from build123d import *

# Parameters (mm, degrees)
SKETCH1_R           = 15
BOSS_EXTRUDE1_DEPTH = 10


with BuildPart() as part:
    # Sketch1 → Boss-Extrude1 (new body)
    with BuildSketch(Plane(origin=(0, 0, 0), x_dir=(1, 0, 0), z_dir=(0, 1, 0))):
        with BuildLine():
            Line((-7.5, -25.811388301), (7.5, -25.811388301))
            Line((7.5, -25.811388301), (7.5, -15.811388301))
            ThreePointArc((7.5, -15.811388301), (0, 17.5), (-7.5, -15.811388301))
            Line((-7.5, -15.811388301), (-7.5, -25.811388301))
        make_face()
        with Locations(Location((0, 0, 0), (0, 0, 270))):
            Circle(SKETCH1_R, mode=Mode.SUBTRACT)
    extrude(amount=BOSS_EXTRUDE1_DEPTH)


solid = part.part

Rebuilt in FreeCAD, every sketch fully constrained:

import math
import FreeCAD as App
import Part
import Sketcher
Q = App.Units.Quantity

doc = App.newDocument("Part")
body = doc.addObject("PartDesign::Body", "Body")

sketch1 = body.newObject("Sketcher::SketchObject", "Sketch")
sketch1.AttachmentSupport = (doc.getObject("XZ_Plane"), [""])
sketch1.MapMode = "FlatFace"
sketch1.addGeometry(Part.LineSegment(App.Vector(-7.5, 25.811388, 0), App.Vector(7.5, 25.811388, 0)), False)
sketch1.addGeometry(Part.LineSegment(App.Vector(7.5, 25.811388, 0), App.Vector(7.5, 15.811388, 0)), False)
sketch1.addGeometry(Part.ArcOfCircle(Part.Circle(App.Vector(0, 0, 0), App.Vector(0, 0, 1), 17.5), math.radians(115.376934), math.radians(424.623066)), False)
sketch1.addGeometry(Part.LineSegment(App.Vector(-7.5, 15.811388, 0), App.Vector(-7.5, 25.811388, 0)), False)
sketch1.addGeometry(Part.Circle(App.Vector(0, 0, 0), App.Vector(0, 0, 1), 15), False)
sketch1.addConstraint(Sketcher.Constraint("Coincident", 0, 2, 1, 1))
sketch1.addConstraint(Sketcher.Constraint("Coincident", 1, 2, 2, 2))
sketch1.addConstraint(Sketcher.Constraint("Coincident", 2, 1, 3, 1))
sketch1.addConstraint(Sketcher.Constraint("Coincident", 3, 2, 0, 1))
sketch1.addConstraint(Sketcher.Constraint("Horizontal", 0))
sketch1.addConstraint(Sketcher.Constraint("Vertical", 1))
sketch1.addConstraint(Sketcher.Constraint("Vertical", 3))
sketch1.addConstraint(Sketcher.Constraint("Coincident", 2, 3, -1, 1))
sketch1.addConstraint(Sketcher.Constraint("Coincident", 4, 3, -1, 1))
sketch1.addConstraint(Sketcher.Constraint("Horizontal", 1, 2, 2, 1))
sketch1.addConstraint(Sketcher.Constraint("Diameter", 4, Q("30 mm")))
sketch1.addConstraint(Sketcher.Constraint("Radius", 2, Q("17.5 mm")))
sketch1.addConstraint(Sketcher.Constraint("DistanceX", 0, 1, 0, 2, Q("15 mm")))
sketch1.addConstraint(Sketcher.Constraint("DistanceY", 1, 2, 1, 1, Q("10 mm")))
pad1 = body.newObject("PartDesign::Pad", "Pad")
pad1.Profile = sketch1
pad1.Length = 10
pad1.Reversed = True

doc.recompute()
